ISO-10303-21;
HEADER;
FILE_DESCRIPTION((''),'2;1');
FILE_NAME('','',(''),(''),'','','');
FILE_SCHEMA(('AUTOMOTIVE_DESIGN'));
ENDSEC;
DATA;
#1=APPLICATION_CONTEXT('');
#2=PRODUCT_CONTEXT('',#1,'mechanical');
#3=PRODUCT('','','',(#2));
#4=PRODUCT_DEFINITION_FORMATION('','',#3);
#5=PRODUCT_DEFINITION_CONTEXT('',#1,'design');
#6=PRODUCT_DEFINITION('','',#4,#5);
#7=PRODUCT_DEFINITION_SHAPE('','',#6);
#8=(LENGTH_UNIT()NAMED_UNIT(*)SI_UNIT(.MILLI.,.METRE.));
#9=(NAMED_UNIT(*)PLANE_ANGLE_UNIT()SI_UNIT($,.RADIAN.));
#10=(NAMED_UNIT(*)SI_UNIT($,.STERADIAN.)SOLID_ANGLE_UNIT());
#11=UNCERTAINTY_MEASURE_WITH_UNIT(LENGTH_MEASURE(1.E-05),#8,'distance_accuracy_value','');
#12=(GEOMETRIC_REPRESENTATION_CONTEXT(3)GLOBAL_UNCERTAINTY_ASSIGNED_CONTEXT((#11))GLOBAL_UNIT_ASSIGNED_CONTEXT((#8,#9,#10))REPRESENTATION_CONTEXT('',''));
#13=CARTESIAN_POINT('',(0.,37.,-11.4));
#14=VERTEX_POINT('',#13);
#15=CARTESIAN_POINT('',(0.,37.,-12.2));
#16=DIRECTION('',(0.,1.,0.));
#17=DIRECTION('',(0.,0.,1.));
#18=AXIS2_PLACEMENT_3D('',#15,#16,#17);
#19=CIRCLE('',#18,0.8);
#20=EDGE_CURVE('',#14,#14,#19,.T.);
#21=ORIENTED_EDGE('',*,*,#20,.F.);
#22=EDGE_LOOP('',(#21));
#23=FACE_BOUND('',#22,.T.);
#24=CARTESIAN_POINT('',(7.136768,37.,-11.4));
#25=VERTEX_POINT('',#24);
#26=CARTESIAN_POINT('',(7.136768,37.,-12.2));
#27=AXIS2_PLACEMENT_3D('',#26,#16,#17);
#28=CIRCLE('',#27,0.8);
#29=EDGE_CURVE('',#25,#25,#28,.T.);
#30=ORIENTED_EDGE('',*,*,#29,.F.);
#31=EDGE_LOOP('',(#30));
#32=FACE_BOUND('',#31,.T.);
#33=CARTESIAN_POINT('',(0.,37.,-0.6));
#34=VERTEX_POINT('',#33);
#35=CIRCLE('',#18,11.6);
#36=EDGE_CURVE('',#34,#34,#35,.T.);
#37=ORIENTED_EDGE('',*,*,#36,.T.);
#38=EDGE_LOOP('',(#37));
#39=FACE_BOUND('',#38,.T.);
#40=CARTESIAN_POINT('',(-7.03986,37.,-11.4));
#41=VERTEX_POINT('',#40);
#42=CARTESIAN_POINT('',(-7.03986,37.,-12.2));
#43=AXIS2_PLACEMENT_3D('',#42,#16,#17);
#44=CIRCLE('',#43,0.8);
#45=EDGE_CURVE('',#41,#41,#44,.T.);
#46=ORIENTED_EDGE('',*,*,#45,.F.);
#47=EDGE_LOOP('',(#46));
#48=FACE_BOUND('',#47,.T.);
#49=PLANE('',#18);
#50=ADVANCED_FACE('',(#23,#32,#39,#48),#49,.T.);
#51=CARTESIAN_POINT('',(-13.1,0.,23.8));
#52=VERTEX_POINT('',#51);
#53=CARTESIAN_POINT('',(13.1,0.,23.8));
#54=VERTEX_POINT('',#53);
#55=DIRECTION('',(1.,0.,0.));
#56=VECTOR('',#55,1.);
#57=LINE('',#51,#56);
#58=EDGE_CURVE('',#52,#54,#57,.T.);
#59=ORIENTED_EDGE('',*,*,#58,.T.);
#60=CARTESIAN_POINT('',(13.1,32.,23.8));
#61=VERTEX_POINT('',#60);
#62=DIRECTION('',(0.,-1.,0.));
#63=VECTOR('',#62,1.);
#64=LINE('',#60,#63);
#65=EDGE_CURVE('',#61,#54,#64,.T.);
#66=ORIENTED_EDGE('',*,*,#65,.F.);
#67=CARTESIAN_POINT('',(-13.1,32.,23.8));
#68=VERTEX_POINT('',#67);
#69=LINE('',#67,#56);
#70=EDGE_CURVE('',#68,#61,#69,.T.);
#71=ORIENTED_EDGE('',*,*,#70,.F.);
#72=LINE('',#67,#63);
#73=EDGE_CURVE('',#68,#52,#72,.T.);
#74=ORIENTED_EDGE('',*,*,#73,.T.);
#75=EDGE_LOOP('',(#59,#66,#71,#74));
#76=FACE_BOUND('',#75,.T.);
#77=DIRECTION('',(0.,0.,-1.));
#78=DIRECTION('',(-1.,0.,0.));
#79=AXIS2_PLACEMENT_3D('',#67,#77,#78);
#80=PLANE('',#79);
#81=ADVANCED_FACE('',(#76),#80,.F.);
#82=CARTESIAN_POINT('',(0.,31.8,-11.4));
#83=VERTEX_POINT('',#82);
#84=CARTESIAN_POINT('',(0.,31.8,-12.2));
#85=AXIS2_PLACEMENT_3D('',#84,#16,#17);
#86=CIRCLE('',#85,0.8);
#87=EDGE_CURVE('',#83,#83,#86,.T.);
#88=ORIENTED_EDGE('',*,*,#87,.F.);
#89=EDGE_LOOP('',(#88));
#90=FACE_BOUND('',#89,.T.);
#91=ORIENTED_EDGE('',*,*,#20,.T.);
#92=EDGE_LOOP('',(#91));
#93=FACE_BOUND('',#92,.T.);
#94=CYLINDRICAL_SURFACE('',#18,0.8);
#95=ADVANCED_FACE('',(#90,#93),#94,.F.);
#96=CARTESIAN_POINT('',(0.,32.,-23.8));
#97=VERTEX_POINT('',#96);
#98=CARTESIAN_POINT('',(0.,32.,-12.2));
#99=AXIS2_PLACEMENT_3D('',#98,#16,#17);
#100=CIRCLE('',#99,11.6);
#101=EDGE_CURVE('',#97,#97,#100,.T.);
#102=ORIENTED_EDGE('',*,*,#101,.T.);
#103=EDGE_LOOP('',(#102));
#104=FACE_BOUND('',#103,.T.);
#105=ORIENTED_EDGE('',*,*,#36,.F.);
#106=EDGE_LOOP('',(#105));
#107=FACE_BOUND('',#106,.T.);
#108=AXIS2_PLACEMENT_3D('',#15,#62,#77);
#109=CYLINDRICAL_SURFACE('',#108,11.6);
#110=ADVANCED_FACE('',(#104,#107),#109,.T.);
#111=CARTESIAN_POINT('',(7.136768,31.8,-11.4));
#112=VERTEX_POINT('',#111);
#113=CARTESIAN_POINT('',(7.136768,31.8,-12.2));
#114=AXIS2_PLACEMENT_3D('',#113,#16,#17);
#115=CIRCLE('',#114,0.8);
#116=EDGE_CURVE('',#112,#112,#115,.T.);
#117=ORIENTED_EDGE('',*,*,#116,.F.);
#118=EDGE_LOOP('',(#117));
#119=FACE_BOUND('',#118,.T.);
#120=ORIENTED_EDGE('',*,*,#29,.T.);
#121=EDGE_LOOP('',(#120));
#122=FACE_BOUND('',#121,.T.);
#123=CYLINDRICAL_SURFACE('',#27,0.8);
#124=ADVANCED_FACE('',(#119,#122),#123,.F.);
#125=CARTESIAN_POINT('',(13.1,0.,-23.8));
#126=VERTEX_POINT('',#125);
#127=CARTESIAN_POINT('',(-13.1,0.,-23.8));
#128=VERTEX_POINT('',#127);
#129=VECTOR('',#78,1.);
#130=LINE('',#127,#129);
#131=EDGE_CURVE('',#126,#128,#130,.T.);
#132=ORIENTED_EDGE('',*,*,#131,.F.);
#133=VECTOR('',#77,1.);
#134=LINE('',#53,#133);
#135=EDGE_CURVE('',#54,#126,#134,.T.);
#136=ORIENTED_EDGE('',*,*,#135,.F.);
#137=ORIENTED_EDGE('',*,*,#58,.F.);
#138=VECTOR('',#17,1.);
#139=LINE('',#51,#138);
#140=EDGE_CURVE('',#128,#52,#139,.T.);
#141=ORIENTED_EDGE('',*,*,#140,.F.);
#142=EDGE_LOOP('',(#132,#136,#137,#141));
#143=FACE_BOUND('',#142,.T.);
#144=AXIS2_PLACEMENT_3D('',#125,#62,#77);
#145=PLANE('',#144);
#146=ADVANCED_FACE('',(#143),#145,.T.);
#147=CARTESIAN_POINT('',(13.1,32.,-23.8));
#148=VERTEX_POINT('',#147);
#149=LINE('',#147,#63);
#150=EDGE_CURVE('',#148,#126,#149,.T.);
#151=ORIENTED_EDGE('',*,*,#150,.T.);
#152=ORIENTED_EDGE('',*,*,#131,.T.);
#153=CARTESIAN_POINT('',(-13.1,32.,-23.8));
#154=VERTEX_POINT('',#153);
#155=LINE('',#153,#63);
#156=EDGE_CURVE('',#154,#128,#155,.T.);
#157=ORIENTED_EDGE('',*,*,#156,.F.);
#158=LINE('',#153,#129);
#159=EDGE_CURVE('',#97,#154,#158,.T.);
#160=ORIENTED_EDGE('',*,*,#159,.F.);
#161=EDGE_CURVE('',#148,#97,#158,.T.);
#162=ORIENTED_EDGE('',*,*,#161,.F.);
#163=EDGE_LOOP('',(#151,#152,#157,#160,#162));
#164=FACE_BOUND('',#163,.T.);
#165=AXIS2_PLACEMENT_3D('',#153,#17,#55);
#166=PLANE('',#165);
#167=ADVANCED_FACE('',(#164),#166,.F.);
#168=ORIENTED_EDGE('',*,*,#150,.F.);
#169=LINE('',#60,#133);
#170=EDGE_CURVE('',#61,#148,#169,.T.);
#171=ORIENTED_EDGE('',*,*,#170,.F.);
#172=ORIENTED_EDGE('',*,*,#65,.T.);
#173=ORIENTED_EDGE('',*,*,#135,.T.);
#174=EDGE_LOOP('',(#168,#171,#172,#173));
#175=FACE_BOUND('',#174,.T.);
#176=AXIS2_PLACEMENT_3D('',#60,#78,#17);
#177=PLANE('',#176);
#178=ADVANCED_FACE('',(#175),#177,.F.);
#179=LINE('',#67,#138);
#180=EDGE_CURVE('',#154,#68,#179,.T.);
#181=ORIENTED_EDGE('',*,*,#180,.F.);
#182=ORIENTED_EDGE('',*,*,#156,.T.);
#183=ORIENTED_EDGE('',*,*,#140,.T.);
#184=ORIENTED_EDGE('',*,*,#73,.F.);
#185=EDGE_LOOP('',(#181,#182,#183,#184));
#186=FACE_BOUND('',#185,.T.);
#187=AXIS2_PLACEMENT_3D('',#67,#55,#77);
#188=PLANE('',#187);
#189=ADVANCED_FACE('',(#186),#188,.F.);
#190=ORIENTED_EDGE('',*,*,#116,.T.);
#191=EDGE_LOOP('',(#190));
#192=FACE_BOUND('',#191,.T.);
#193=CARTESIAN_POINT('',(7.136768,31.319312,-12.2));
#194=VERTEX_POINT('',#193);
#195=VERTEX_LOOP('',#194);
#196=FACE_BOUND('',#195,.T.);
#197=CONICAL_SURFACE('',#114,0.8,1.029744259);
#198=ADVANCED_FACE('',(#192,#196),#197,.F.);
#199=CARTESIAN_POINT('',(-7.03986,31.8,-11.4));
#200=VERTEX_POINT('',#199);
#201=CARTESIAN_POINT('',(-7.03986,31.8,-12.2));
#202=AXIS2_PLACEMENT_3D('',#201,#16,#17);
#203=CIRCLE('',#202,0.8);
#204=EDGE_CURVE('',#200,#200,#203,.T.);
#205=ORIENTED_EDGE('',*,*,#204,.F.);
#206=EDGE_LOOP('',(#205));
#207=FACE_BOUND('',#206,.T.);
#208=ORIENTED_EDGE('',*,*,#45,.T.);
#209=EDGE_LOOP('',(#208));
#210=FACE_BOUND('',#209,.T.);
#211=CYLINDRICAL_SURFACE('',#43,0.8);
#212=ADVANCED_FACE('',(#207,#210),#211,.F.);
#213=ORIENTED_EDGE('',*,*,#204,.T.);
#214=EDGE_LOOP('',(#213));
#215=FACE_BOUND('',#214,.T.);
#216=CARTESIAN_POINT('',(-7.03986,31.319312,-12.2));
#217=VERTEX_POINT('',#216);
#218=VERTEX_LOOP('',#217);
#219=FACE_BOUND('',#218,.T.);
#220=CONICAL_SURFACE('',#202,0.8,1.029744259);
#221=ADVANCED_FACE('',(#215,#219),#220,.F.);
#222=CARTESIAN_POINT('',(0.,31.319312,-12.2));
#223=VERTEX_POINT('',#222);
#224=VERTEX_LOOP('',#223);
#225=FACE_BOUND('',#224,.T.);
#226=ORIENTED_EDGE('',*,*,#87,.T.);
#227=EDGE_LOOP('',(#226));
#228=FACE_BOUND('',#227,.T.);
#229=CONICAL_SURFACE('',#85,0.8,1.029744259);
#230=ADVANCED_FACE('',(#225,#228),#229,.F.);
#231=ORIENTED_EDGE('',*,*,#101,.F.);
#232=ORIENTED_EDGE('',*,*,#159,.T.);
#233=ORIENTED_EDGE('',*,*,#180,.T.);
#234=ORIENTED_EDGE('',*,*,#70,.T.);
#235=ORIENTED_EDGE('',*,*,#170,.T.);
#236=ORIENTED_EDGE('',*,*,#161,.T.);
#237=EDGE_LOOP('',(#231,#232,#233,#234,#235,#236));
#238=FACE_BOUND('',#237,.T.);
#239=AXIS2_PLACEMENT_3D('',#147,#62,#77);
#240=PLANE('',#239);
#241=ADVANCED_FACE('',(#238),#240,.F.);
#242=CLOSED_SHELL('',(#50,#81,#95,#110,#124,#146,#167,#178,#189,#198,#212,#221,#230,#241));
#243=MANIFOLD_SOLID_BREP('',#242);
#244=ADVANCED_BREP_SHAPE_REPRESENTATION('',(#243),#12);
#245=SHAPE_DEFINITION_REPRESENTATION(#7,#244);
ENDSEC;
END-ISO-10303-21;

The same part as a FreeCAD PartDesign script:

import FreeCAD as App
import Part
import Sketcher

doc = App.newDocument("Part")
body = doc.addObject("PartDesign::Body", "Body")

sketch1 = doc.addObject("Sketcher::SketchObject", "Sketch")
body.addObject(sketch1)
sketch1.AttachmentSupport = (doc.XZ_Plane, [""])
sketch1.MapMode = "FlatFace"
sketch1.addGeometry([
    Part.LineSegment(App.Vector(-13, -24, 0), App.Vector(-13, 24, 0)),
    Part.LineSegment(App.Vector(-13, 24, 0), App.Vector(13, 24, 0)),
    Part.LineSegment(App.Vector(13, 24, 0), App.Vector(13, -24, 0)),
    Part.LineSegment(App.Vector(13, -24, 0), App.Vector(-13, -24, 0)),
], False)
sketch1.addConstraint([
    Sketcher.Constraint("Coincident", 0, 2, 1, 1),
    Sketcher.Constraint("Coincident", 1, 2, 2, 1),
    Sketcher.Constraint("Coincident", 2, 2, 3, 1),
    Sketcher.Constraint("Coincident", 3, 2, 0, 1),
    Sketcher.Constraint("Vertical", 0),
    Sketcher.Constraint("Horizontal", 1),
    Sketcher.Constraint("Vertical", 2),
    Sketcher.Constraint("Horizontal", 3),
    Sketcher.Constraint("Symmetric", 0, 2, 2, 2, -1, 1),
    Sketcher.Constraint("DistanceX", 1, 1, 1, 2, 26.2),
    Sketcher.Constraint("DistanceY", 0, 1, 0, 2, 47.6),
])
pad1 = doc.addObject("PartDesign::Pad", "Pad")
body.addObject(pad1)
pad1.Profile = sketch1
pad1.Length = 32
pad1.Reversed = True

sketch2 = doc.addObject("Sketcher::SketchObject", "Sketch001")
body.addObject(sketch2)
sketch2.AttachmentSupport = (doc.XZ_Plane, [""])
sketch2.MapMode = "FlatFace"
sketch2.AttachmentOffset = App.Placement(App.Vector(0, 0, -32), App.Rotation())
sketch2.addGeometry(Part.Circle(App.Vector(0, -12, 0), App.Vector(0, 0, 1), 12), False)
sketch2.addConstraint([
    Sketcher.Constraint("PointOnObject", 0, 3, -2),
    Sketcher.Constraint("Diameter", 0, 23.2),
    Sketcher.Constraint("DistanceY", 0, 3, -1, 1, 12.2),
])
pad2 = doc.addObject("PartDesign::Pad", "Pad001")
body.addObject(pad2)
pad2.Profile = sketch2
pad2.Length = 5
pad2.Reversed = True

sketch3 = doc.addObject("Sketcher::SketchObject", "Sketch002")
body.addObject(sketch3)
sketch3.AttachmentSupport = (doc.XZ_Plane, [""])
sketch3.MapMode = "FlatFace"
sketch3.AttachmentOffset = App.Placement(App.Vector(0, 0, -37), App.Rotation())
sketch3.addGeometry([
    Part.Circle(App.Vector(0, -12.2, 0), App.Vector(0, 0, 1), 0.8),
    Part.Circle(App.Vector(-7, -12.2, 0), App.Vector(0, 0, 1), 0.8),
    Part.Circle(App.Vector(7.1, -12.2, 0), App.Vector(0, 0, 1), 0.8),
], False)
sketch3.addConstraint([
    Sketcher.Constraint("Equal", 0, 1),
    Sketcher.Constraint("Equal", 1, 2),
    Sketcher.Constraint("PointOnObject", 0, 3, -2),
    Sketcher.Constraint("Horizontal", 0, 3, 1, 3),
    Sketcher.Constraint("Horizontal", 1, 3, 2, 3),
    Sketcher.Constraint("Diameter", 0, 1.6),
    Sketcher.Constraint("DistanceY", 0, 3, -1, 1, 12.2),
    Sketcher.Constraint("DistanceX", 1, 3, -1, 1, 7.03986),
    Sketcher.Constraint("DistanceX", -1, 1, 2, 3, 7.136768),
])
doc.recompute()
hole = doc.addObject("PartDesign::Hole", "Hole")
body.addObject(hole)
hole.Profile = sketch3
hole.ThreadType = "None"
hole.Diameter = 1.6
hole.DepthType = "Dimension"
hole.Depth = 5.2
hole.DrillPoint = "Angled"
hole.DrillPointAngle = 118
hole.Reversed = True

doc.recompute()
